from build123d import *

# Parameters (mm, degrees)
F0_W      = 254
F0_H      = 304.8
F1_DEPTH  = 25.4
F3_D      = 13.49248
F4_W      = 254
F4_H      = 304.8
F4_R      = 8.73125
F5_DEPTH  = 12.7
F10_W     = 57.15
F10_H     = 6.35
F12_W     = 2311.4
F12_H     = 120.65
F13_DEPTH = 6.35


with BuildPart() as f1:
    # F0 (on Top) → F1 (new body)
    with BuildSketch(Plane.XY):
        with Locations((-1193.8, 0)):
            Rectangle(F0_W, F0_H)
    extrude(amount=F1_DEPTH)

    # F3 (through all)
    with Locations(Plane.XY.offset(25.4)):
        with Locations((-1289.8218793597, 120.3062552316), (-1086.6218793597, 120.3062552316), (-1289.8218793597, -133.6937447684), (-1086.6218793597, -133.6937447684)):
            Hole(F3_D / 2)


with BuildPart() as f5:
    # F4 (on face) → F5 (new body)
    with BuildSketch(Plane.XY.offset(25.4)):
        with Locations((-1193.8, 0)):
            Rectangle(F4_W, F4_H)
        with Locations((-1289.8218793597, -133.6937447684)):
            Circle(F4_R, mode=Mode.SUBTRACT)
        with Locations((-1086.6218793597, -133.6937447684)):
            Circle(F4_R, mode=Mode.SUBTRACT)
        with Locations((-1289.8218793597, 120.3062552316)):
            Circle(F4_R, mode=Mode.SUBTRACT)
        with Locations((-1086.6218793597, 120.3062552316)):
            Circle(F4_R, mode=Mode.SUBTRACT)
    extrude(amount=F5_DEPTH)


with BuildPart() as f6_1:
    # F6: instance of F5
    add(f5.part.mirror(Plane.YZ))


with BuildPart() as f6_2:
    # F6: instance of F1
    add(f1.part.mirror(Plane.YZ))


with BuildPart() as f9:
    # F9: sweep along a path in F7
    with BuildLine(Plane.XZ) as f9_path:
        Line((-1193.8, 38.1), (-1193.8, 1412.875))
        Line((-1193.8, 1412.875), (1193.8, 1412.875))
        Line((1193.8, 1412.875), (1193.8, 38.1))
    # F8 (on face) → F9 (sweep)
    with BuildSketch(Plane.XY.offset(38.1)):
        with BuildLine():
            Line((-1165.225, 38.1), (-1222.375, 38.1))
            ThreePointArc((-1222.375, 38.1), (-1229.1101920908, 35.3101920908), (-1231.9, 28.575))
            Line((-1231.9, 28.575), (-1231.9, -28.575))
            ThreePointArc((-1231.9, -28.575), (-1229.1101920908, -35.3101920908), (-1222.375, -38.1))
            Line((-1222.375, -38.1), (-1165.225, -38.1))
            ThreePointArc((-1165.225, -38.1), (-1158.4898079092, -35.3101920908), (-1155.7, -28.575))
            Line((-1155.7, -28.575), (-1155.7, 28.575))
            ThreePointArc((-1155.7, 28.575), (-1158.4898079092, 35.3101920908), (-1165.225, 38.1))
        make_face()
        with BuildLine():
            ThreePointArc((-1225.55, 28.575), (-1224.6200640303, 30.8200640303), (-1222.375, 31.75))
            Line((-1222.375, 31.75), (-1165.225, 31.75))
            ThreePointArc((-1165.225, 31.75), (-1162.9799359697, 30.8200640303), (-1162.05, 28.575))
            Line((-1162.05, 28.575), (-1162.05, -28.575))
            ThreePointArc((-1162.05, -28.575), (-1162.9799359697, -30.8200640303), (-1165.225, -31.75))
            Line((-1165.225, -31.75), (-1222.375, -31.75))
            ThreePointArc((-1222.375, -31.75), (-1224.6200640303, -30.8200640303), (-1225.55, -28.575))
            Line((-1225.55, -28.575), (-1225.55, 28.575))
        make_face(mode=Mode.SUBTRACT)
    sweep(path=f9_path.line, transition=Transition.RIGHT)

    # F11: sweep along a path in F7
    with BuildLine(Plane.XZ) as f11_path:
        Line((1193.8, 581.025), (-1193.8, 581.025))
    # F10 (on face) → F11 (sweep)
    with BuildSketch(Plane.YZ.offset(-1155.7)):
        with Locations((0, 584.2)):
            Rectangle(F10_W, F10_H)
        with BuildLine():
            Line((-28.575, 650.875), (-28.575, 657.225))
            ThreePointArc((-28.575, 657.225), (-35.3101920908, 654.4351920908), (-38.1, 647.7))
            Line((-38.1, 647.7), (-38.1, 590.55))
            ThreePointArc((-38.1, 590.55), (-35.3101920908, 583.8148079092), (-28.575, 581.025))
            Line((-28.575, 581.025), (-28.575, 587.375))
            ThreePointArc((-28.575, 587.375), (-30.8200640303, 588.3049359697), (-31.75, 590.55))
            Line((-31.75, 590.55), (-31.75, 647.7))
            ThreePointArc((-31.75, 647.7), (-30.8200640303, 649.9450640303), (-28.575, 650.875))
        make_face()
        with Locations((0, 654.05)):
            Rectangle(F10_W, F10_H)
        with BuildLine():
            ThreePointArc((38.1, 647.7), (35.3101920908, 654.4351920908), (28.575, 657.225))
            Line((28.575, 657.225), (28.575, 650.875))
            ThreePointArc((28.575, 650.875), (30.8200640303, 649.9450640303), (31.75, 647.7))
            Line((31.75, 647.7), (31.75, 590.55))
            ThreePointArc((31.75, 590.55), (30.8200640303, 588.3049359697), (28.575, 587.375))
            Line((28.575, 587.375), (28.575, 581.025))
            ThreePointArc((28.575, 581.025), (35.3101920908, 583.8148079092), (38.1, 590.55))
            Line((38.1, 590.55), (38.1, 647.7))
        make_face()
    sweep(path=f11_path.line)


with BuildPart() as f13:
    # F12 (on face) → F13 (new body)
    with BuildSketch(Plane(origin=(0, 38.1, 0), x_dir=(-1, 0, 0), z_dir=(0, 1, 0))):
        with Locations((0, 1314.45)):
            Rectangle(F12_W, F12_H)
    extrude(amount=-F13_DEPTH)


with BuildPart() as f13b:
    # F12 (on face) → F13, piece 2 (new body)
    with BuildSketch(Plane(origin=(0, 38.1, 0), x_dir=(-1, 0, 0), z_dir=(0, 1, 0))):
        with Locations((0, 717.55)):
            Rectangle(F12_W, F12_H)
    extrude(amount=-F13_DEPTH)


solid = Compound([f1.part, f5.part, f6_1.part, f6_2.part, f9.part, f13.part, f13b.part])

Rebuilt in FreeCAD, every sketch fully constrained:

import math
import FreeCAD as App
import Part
import Sketcher
Q = App.Units.Quantity

doc = App.newDocument("Part")
body = doc.addObject("PartDesign::Body", "Body")

sketch1 = body.newObject("Sketcher::SketchObject", "Sketch")
sketch1.AttachmentSupport = (doc.getObject("XY_Plane"), [""])
sketch1.MapMode = "FlatFace"
sketch1.addGeometry([
    Part.LineSegment(App.Vector(-1320.8, 152.4, 0), App.Vector(-1320.8, -152.4, 0)),
    Part.LineSegment(App.Vector(-1320.8, -152.4, 0), App.Vector(-1066.8, -152.4, 0)),
    Part.LineSegment(App.Vector(-1066.8, -152.4, 0), App.Vector(-1066.8, 152.4, 0)),
    Part.LineSegment(App.Vector(-1066.8, 152.4, 0), App.Vector(-1320.8, 152.4, 0)),
], False)
sketch1.addConstraint([
    Sketcher.Constraint("Coincident", 0, 2, 1, 1),
    Sketcher.Constraint("Coincident", 1, 2, 2, 1),
    Sketcher.Constraint("Coincident", 2, 2, 3, 1),
    Sketcher.Constraint("Coincident", 3, 2, 0, 1),
    Sketcher.Constraint("Vertical", 0),
    Sketcher.Constraint("Horizontal", 1),
    Sketcher.Constraint("Vertical", 2),
    Sketcher.Constraint("Horizontal", 3),
    Sketcher.Constraint("DistanceX", 1, 1, 1, 2, Q("10 in")),
    Sketcher.Constraint("DistanceY", 0, 2, 0, 1, Q("12 in")),
    Sketcher.Constraint("DistanceX", 0, 2, -1, 1, Q("52 in")),
    Sketcher.Constraint("DistanceY", 0, 2, -1, 1, Q("6 in")),
])
pad1 = body.newObject("PartDesign::Pad", "Pad")
pad1.Profile = sketch1
pad1.Length = Q("1 in")

sketch2 = body.newObject("Sketcher::SketchObject", "Sketch001")
sketch2.AttachmentSupport = (doc.getObject("XY_Plane"), [""])
sketch2.MapMode = "FlatFace"
sketch2.AttachmentOffset = App.Placement(App.Vector(0, 0, 1 * 25.4), App.Rotation())
sketch2.addGeometry([
    Part.Circle(App.Vector(-1289.821879, 120.306255, 0), App.Vector(0, 0, 1), 6.74624),
    Part.Circle(App.Vector(-1086.621879, 120.306255, 0), App.Vector(0, 0, 1), 6.74624),
    Part.Circle(App.Vector(-1289.821879, -133.693745, 0), App.Vector(0, 0, 1), 6.74624),
    Part.Circle(App.Vector(-1086.621879, -133.693745, 0), App.Vector(0, 0, 1), 6.74624),
], False)
sketch2.addConstraint([
    Sketcher.Constraint("Equal", 0, 1),
    Sketcher.Constraint("Equal", 1, 2),
    Sketcher.Constraint("Equal", 2, 3),
    Sketcher.Constraint("Horizontal", 0, 3, 1, 3),
    Sketcher.Constraint("Horizontal", 2, 3, 3, 3),
    Sketcher.Constraint("Vertical", 0, 3, 2, 3),
    Sketcher.Constraint("Vertical", 1, 3, 3, 3),
    Sketcher.Constraint("DistanceX", 0, 3, 1, 3, Q("8 in")),
    Sketcher.Constraint("DistanceY", 2, 3, 0, 3, Q("10 in")),
    Sketcher.Constraint("Diameter", 0, Q("0.5312 in")),
    Sketcher.Constraint("DistanceX", 0, 3, -1, 1, 1289.821879),
    Sketcher.Constraint("DistanceY", -1, 1, 0, 3, 120.306255),
])
doc.recompute()
hole = body.newObject("PartDesign::Hole", "Hole")
hole.Profile = sketch2
hole.ThreadType = "None"
hole.Diameter = Q("0.5312 in")
hole.DepthType = "ThroughAll"
body2 = doc.addObject("PartDesign::Body", "Body001")

sketch3 = body2.newObject("Sketcher::SketchObject", "Sketch002")
sketch3.AttachmentSupport = (doc.getObject("XY_Plane001"), [""])
sketch3.MapMode = "FlatFace"
sketch3.AttachmentOffset = App.Placement(App.Vector(0, 0, 1 * 25.4), App.Rotation())
sketch3.addGeometry([
    Part.LineSegment(App.Vector(-1320.8, 152.4, 0), App.Vector(-1320.8, -152.4, 0)),
    Part.LineSegment(App.Vector(-1320.8, -152.4, 0), App.Vector(-1066.8, -152.4, 0)),
    Part.LineSegment(App.Vector(-1066.8, -152.4, 0), App.Vector(-1066.8, 152.4, 0)),
    Part.LineSegment(App.Vector(-1066.8, 152.4, 0), App.Vector(-1320.8, 152.4, 0)),
    Part.Circle(App.Vector(-1289.821879, -133.693745, 0), App.Vector(0, 0, 1), 8.73125),
    Part.Circle(App.Vector(-1086.621879, -133.693745, 0), App.Vector(0, 0, 1), 8.73125),
    Part.Circle(App.Vector(-1289.821879, 120.306255, 0), App.Vector(0, 0, 1), 8.73125),
    Part.Circle(App.Vector(-1086.621879, 120.306255, 0), App.Vector(0, 0, 1), 8.73125),
], False)
sketch3.addConstraint([
    Sketcher.Constraint("Coincident", 0, 2, 1, 1),
    Sketcher.Constraint("Coincident", 1, 2, 2, 1),
    Sketcher.Constraint("Coincident", 2, 2, 3, 1),
    Sketcher.Constraint("Coincident", 3, 2, 0, 1),
    Sketcher.Constraint("Vertical", 0),
    Sketcher.Constraint("Horizontal", 1),
    Sketcher.Constraint("Vertical", 2),
    Sketcher.Constraint("Horizontal", 3),
    Sketcher.Constraint("Equal", 4, 5),
    Sketcher.Constraint("Equal", 5, 6),
    Sketcher.Constraint("Equal", 6, 7),
    Sketcher.Constraint("Horizontal", 4, 3, 5, 3),
    Sketcher.Constraint("Horizontal", 6, 3, 7, 3),
    Sketcher.Constraint("Vertical", 4, 3, 6, 3),
    Sketcher.Constraint("Vertical", 5, 3, 7, 3),
    Sketcher.Constraint("DistanceX", 1, 1, 1, 2, Q("10 in")),
    Sketcher.Constraint("DistanceY", 0, 2, 0, 1, Q("12 in")),
    Sketcher.Constraint("Diameter", 4, Q("0.6875 in")),
    Sketcher.Constraint("DistanceX", 0, 2, -1, 1, Q("52 in")),
    Sketcher.Constraint("DistanceY", 0, 2, -1, 1, Q("6 in")),
    Sketcher.Constraint("DistanceX", 4, 3, 5, 3, Q("8 in")),
    Sketcher.Constraint("DistanceY", 4, 3, 6, 3, Q("10 in")),
    Sketcher.Constraint("DistanceX", 4, 3, -1, 1, 1289.821879),
    Sketcher.Constraint("DistanceY", 4, 3, -1, 1, 133.693745),
])
pad2 = body2.newObject("PartDesign::Pad", "Pad001")
pad2.Profile = sketch3
pad2.Length = Q("0.5 in")
body3 = doc.addObject("PartDesign::Body", "Body002")
doc.recompute()

mirroring = doc.addObject("Part::Mirroring", "Mirroring")
mirroring.Source = body2
mirroring.Base = App.Vector(0, 0, 0)
mirroring.Normal = App.Vector(1, 0, 0)
body3.BaseFeature = mirroring
doc.recompute()
body4 = doc.addObject("PartDesign::Body", "Body003")
doc.recompute()

mirroring2 = doc.addObject("Part::Mirroring", "Mirroring001")
mirroring2.Source = body
mirroring2.Base = App.Vector(0, 0, 0)
mirroring2.Normal = App.Vector(1, 0, 0)
body4.BaseFeature = mirroring2
doc.recompute()
body5 = doc.addObject("PartDesign::Body", "Body004")

sketch4 = body5.newObject("Sketcher::SketchObject", "Sketch003")
sketch4.AttachmentSupport = (doc.getObject("XY_Plane004"), [""])
sketch4.MapMode = "FlatFace"
sketch4.AttachmentOffset = App.Placement(App.Vector(0, 0, 1.5 * 25.4), App.Rotation())
sketch4.addGeometry([
    Part.LineSegment(App.Vector(-1165.225, 38.1, 0), App.Vector(-1222.375, 38.1, 0)),
    Part.ArcOfCircle(Part.Circle(App.Vector(-1222.375, 28.575, 0), App.Vector(0, 0, 1), 9.525), math.radians(90), math.radians(180)),
    Part.LineSegment(App.Vector(-1231.9, 28.575, 0), App.Vector(-1231.9, -28.575, 0)),
    Part.ArcOfCircle(Part.Circle(App.Vector(-1222.375, -28.575, 0), App.Vector(0, 0, 1), 9.525), math.radians(180), math.radians(270)),
    Part.LineSegment(App.Vector(-1222.375, -38.1, 0), App.Vector(-1165.225, -38.1, 0)),
    Part.ArcOfCircle(Part.Circle(App.Vector(-1165.225, -28.575, 0), App.Vector(0, 0, 1), 9.525), math.radians(-90), math.radians(0)),
    Part.LineSegment(App.Vector(-1155.7, -28.575, 0), App.Vector(-1155.7, 28.575, 0)),
    Part.ArcOfCircle(Part.Circle(App.Vector(-1165.225, 28.575, 0), App.Vector(0, 0, 1), 9.525), math.radians(0), math.radians(90)),
    Part.LineSegment(App.Vector(-1225.55, -28.575, 0), App.Vector(-1225.55, 28.575, 0)),
    Part.ArcOfCircle(Part.Circle(App.Vector(-1222.375, 28.575, 0), App.Vector(0, 0, 1), 3.175), math.radians(90), math.radians(180)),
    Part.LineSegment(App.Vector(-1222.375, 31.75, 0), App.Vector(-1165.225, 31.75, 0)),
    Part.ArcOfCircle(Part.Circle(App.Vector(-1165.225, 28.575, 0), App.Vector(0, 0, 1), 3.175), math.radians(0), math.radians(90)),
    Part.LineSegment(App.Vector(-1162.05, 28.575, 0), App.Vector(-1162.05, -28.575, 0)),
    Part.ArcOfCircle(Part.Circle(App.Vector(-1165.225, -28.575, 0), App.Vector(0, 0, 1), 3.175), math.radians(-90), math.radians(0)),
    Part.LineSegment(App.Vector(-1165.225, -31.75, 0), App.Vector(-1222.375, -31.75, 0)),
    Part.ArcOfCircle(Part.Circle(App.Vector(-1222.375, -28.575, 0), App.Vector(0, 0, 1), 3.175), math.radians(180), math.radians(270)),
], False)
sketch4.addConstraint([
    Sketcher.Constraint("Tangent", 0, 2, 1, 1),
    Sketcher.Constraint("Tangent", 1, 2, 2, 1),
    Sketcher.Constraint("Tangent", 2, 2, 3, 1),
    Sketcher.Constraint("Tangent", 3, 2, 4, 1),
    Sketcher.Constraint("Tangent", 4, 2, 5, 1),
    Sketcher.Constraint("Tangent", 5, 2, 6, 1),
    Sketcher.Constraint("Tangent", 6, 2, 7, 1),
    Sketcher.Constraint("Tangent", 7, 2, 0, 1),
    Sketcher.Constraint("Tangent", 8, 2, 9, 2),
    Sketcher.Constraint("Tangent", 9, 1, 10, 1),
    Sketcher.Constraint("Tangent", 10, 2, 11, 2),
    Sketcher.Constraint("Tangent", 11, 1, 12, 1),
    Sketcher.Constraint("Tangent", 12, 2, 13, 2),
    Sketcher.Constraint("Tangent", 13, 1, 14, 1),
    Sketcher.Constraint("Tangent", 14, 2, 15, 2),
    Sketcher.Constraint("Tangent", 15, 1, 8, 1),
    Sketcher.Constraint("Horizontal", 0),
    Sketcher.Constraint("Vertical", 2),
    Sketcher.Constraint("Horizontal", 4),
    Sketcher.Constraint("Vertical", 6),
    Sketcher.Constraint("Vertical", 8),
    Sketcher.Constraint("Horizontal", 10),
    Sketcher.Constraint("Vertical", 12),
    Sketcher.Constraint("Horizontal", 14),
    Sketcher.Constraint("Coincident", 9, 3, 1, 3),
    Sketcher.Constraint("Coincident", 11, 3, 7, 3),
    Sketcher.Constraint("Coincident", 13, 3, 5, 3),
    Sketcher.Constraint("Equal", 1, 3),
    Sketcher.Constraint("Equal", 3, 5),
    Sketcher.Constraint("Equal", 5, 7),
    Sketcher.Constraint("Equal", 13, 15),
    Sketcher.Constraint("Equal", 14, 2),
    Sketcher.Constraint("Radius", 1, Q("0.375 in")),
    Sketcher.Constraint("Radius", 9, Q("0.125 in")),
    Sketcher.Constraint("DistanceX", 0, 2, 0, 1, Q("2.25 in")),
    Sketcher.Constraint("DistanceY", -1, 1, 0, 2, Q("1.5 in")),
    Sketcher.Constraint("DistanceX", 1, 2, -1, 1, Q("48.5 in")),
])

sketch5 = body5.newObject("Sketcher::SketchObject", "Sketch004")
sketch5.AttachmentSupport = (doc.getObject("XZ_Plane004"), [""])
sketch5.MapMode = "FlatFace"
sketch5.addGeometry([
    Part.LineSegment(App.Vector(-1193.8, 38.1, 0), App.Vector(-1193.8, 1412.875, 0)),
    Part.LineSegment(App.Vector(-1193.8, 1412.875, 0), App.Vector(1193.8, 1412.875, 0)),
    Part.LineSegment(App.Vector(1193.8, 1412.875, 0), App.Vector(1193.8, 38.1, 0)),
], False)
sketch5.addConstraint([
    Sketcher.Constraint("Coincident", 0, 2, 1, 1),
    Sketcher.Constraint("Coincident", 1, 2, 2, 1),
    Sketcher.Constraint("Vertical", 0),
    Sketcher.Constraint("Horizontal", 1),
    Sketcher.Constraint("Vertical", 2),
    Sketcher.Constraint("Symmetric", 0, 1, 2, 2, -2),
    Sketcher.Constraint("DistanceX", 1, 1, 1, 2, Q("94 in")),
    Sketcher.Constraint("DistanceY", -1, 1, 0, 1, Q("1.5 in")),
    Sketcher.Constraint("DistanceY", 0, 1, 0, 2, Q("54.125 in")),
])
doc.recompute()

additivepipe = body5.newObject("PartDesign::AdditivePipe", "AdditivePipe")
additivepipe.Profile = sketch4
additivepipe.Spine = (sketch5, ["Edge1", "Edge2", "Edge3"])
additivepipe.Transition = "Right corner"

sketch6 = body5.newObject("Sketcher::SketchObject", "Sketch005")
sketch6.AttachmentSupport = (doc.getObject("YZ_Plane004"), [""])
sketch6.MapMode = "FlatFace"
sketch6.AttachmentOffset = App.Placement(App.Vector(0, 0, -45.5 * 25.4), App.Rotation())
sketch6.addGeometry([
    Part.LineSegment(App.Vector(-28.575, 581.025, 0), App.Vector(28.575, 581.025, 0)),
    Part.ArcOfCircle(Part.Circle(App.Vector(28.575, 590.55, 0), App.Vector(0, 0, 1), 9.525), math.radians(-90), math.radians(0)),
    Part.LineSegment(App.Vector(38.1, 590.55, 0), App.Vector(38.1, 647.7, 0)),
    Part.ArcOfCircle(Part.Circle(App.Vector(28.575, 647.7, 0), App.Vector(0, 0, 1), 9.525), math.radians(0), math.radians(90)),
    Part.LineSegment(App.Vector(28.575, 657.225, 0), App.Vector(-28.575, 657.225, 0)),
    Part.ArcOfCircle(Part.Circle(App.Vector(-28.575, 647.7, 0), App.Vector(0, 0, 1), 9.525), math.radians(90), math.radians(180)),
    Part.LineSegment(App.Vector(-38.1, 647.7, 0), App.Vector(-38.1, 590.55, 0)),
    Part.ArcOfCircle(Part.Circle(App.Vector(-28.575, 590.55, 0), App.Vector(0, 0, 1), 9.525), math.radians(180), math.radians(270)),
    Part.LineSegment(App.Vector(28.575, 587.375, 0), App.Vector(-28.575, 587.375, 0)),
    Part.ArcOfCircle(Part.Circle(App.Vector(-28.575, 590.55, 0), App.Vector(0, 0, 1), 3.175), math.radians(180), math.radians(270)),
    Part.LineSegment(App.Vector(-31.75, 590.55, 0), App.Vector(-31.75, 647.7, 0)),
    Part.ArcOfCircle(Part.Circle(App.Vector(-28.575, 647.7, 0), App.Vector(0, 0, 1), 3.175), math.radians(90), math.radians(180)),
    Part.LineSegment(App.Vector(-28.575, 650.875, 0), App.Vector(28.575, 650.875, 0)),
    Part.ArcOfCircle(Part.Circle(App.Vector(28.575, 647.7, 0), App.Vector(0, 0, 1), 3.175), math.radians(0), math.radians(90)),
    Part.LineSegment(App.Vector(31.75, 647.7, 0), App.Vector(31.75, 590.55, 0)),
    Part.ArcOfCircle(Part.Circle(App.Vector(28.575, 590.55, 0), App.Vector(0, 0, 1), 3.175), math.radians(-90), math.radians(0)),
], False)
sketch6.addConstraint([
    Sketcher.Constraint("Tangent", 0, 2, 1, 1),
    Sketcher.Constraint("Tangent", 1, 2, 2, 1),
    Sketcher.Constraint("Tangent", 2, 2, 3, 1),
    Sketcher.Constraint("Tangent", 3, 2, 4, 1),
    Sketcher.Constraint("Tangent", 4, 2, 5, 1),
    Sketcher.Constraint("Tangent", 5, 2, 6, 1),
    Sketcher.Constraint("Tangent", 6, 2, 7, 1),
    Sketcher.Constraint("Tangent", 7, 2, 0, 1),
    Sketcher.Constraint("Tangent", 8, 2, 9, 2),
    Sketcher.Constraint("Tangent", 9, 1, 10, 1),
    Sketcher.Constraint("Tangent", 10, 2, 11, 2),
    Sketcher.Constraint("Tangent", 11, 1, 12, 1),
    Sketcher.Constraint("Tangent", 12, 2, 13, 2),
    Sketcher.Constraint("Tangent", 13, 1, 14, 1),
    Sketcher.Constraint("Tangent", 14, 2, 15, 2),
    Sketcher.Constraint("Tangent", 15, 1, 8, 1),
    Sketcher.Constraint("Horizontal", 0),
    Sketcher.Constraint("Vertical", 2),
    Sketcher.Constraint("Horizontal", 4),
    Sketcher.Constraint("Vertical", 6),
    Sketcher.Constraint("Horizontal", 8),
    Sketcher.Constraint("Vertical", 10),
    Sketcher.Constraint("Horizontal", 12),
    Sketcher.Constraint("Vertical", 14),
    Sketcher.Constraint("Coincident", 9, 3, 7, 3),
    Sketcher.Constraint("Coincident", 11, 3, 5, 3),
    Sketcher.Constraint("Coincident", 13, 3, 3, 3),
    Sketcher.Constraint("Equal", 1, 3),
    Sketcher.Constraint("Equal", 3, 5),
    Sketcher.Constraint("Equal", 5, 7),
    Sketcher.Constraint("Equal", 13, 15),
    Sketcher.Constraint("Equal", 12, 2),
    Sketcher.Constraint("Radius", 1, Q("0.375 in")),
    Sketcher.Constraint("Radius", 9, Q("0.125 in")),
    Sketcher.Constraint("DistanceX", 0, 1, 0, 2, Q("2.25 in")),
    Sketcher.Constraint("DistanceY", -1, 1, 3, 3, Q("25.5 in")),
    Sketcher.Constraint("DistanceX", -1, 1, 1, 2, Q("1.5 in")),
])

sketch7 = body5.newObject("Sketcher::SketchObject", "Sketch006")
sketch7.AttachmentSupport = (doc.getObject("XY_Plane004"), [""])
sketch7.MapMode = "FlatFace"
sketch7.AttachmentOffset = App.Placement(App.Vector(0, 0, 22.875 * 25.4), App.Rotation())
sketch7.addGeometry(Part.LineSegment(App.Vector(1193.8, 0, 0), App.Vector(-1193.8, 0, 0)), False)
sketch7.addConstraint([
    Sketcher.Constraint("Horizontal", 0),
    Sketcher.Constraint("Symmetric", 0, 1, 0, 2, -1, 1),
    Sketcher.Constraint("DistanceX", 0, 2, 0, 1, Q("94 in")),
])
doc.recompute()

additivepipe2 = body5.newObject("PartDesign::AdditivePipe", "AdditivePipe001")
additivepipe2.Profile = sketch6
additivepipe2.Spine = (sketch7, ["Edge1"])
body6 = doc.addObject("PartDesign::Body", "Body005")

sketch8 = body6.newObject("Sketcher::SketchObject", "Sketch007")
sketch8.AttachmentSupport = (doc.getObject("XZ_Plane005"), [""])
sketch8.MapMode = "FlatFace"
sketch8.AttachmentOffset = App.Placement(App.Vector(0, 0, -1.5 * 25.4), App.Rotation())
sketch8.addGeometry([
    Part.LineSegment(App.Vector(1155.7, 1374.775, 0), App.Vector(1155.7, 1254.125, 0)),
    Part.LineSegment(App.Vector(1155.7, 1254.125, 0), App.Vector(-1155.7, 1254.125, 0)),
    Part.LineSegment(App.Vector(-1155.7, 1254.125, 0), App.Vector(-1155.7, 1374.775, 0)),
    Part.LineSegment(App.Vector(-1155.7, 1374.775, 0), App.Vector(1155.7, 1374.775, 0)),
], False)
sketch8.addConstraint([
    Sketcher.Constraint("Coincident", 0, 2, 1, 1),
    Sketcher.Constraint("Coincident", 1, 2, 2, 1),
    Sketcher.Constraint("Coincident", 2, 2, 3, 1),
    Sketcher.Constraint("Coincident", 3, 2, 0, 1),
    Sketcher.Constraint("Vertical", 0),
    Sketcher.Constraint("Horizontal", 1),
    Sketcher.Constraint("Vertical", 2),
    Sketcher.Constraint("Horizontal", 3),
    Sketcher.Constraint("DistanceX", 1, 2, 1, 1, Q("91 in")),
    Sketcher.Constraint("DistanceY", 0, 2, 0, 1, Q("4.75 in")),
    Sketcher.Constraint("DistanceX", -1, 1, 0, 2, Q("45.5 in")),
    Sketcher.Constraint("DistanceY", -1, 1, 0, 2, Q("49.375 in")),
])
pad3 = body6.newObject("PartDesign::Pad", "Pad002")
pad3.Profile = sketch8
pad3.Length = Q("0.25 in")
body7 = doc.addObject("PartDesign::Body", "Body006")

sketch9 = body7.newObject("Sketcher::SketchObject", "Sketch008")
sketch9.AttachmentSupport = (doc.getObject("XZ_Plane006"), [""])
sketch9.MapMode = "FlatFace"
sketch9.AttachmentOffset = App.Placement(App.Vector(0, 0, -1.5 * 25.4), App.Rotation())
sketch9.addGeometry([
    Part.LineSegment(App.Vector(1155.7, 777.875, 0), App.Vector(1155.7, 657.225, 0)),
    Part.LineSegment(App.Vector(1155.7, 657.225, 0), App.Vector(-1155.7, 657.225, 0)),
    Part.LineSegment(App.Vector(-1155.7, 657.225, 0), App.Vector(-1155.7, 777.875, 0)),
    Part.LineSegment(App.Vector(-1155.7, 777.875, 0), App.Vector(1155.7, 777.875, 0)),
], False)
sketch9.addConstraint([
    Sketcher.Constraint("Coincident", 0, 2, 1, 1),
    Sketcher.Constraint("Coincident", 1, 2, 2, 1),
    Sketcher.Constraint("Coincident", 2, 2, 3, 1),
    Sketcher.Constraint("Coincident", 3, 2, 0, 1),
    Sketcher.Constraint("Vertical", 0),
    Sketcher.Constraint("Horizontal", 1),
    Sketcher.Constraint("Vertical", 2),
    Sketcher.Constraint("Horizontal", 3),
    Sketcher.Constraint("DistanceX", 1, 2, 1, 1, Q("91 in")),
    Sketcher.Constraint("DistanceY", 0, 2, 0, 1, Q("4.75 in")),
    Sketcher.Constraint("DistanceX", -1, 1, 0, 2, Q("45.5 in")),
    Sketcher.Constraint("DistanceY", -1, 1, 0, 2, Q("25.875 in")),
])
pad4 = body7.newObject("PartDesign::Pad", "Pad003")
pad4.Profile = sketch9
pad4.Length = Q("0.25 in")
mirroring.Visibility = False
mirroring2.Visibility = False

doc.recompute()
